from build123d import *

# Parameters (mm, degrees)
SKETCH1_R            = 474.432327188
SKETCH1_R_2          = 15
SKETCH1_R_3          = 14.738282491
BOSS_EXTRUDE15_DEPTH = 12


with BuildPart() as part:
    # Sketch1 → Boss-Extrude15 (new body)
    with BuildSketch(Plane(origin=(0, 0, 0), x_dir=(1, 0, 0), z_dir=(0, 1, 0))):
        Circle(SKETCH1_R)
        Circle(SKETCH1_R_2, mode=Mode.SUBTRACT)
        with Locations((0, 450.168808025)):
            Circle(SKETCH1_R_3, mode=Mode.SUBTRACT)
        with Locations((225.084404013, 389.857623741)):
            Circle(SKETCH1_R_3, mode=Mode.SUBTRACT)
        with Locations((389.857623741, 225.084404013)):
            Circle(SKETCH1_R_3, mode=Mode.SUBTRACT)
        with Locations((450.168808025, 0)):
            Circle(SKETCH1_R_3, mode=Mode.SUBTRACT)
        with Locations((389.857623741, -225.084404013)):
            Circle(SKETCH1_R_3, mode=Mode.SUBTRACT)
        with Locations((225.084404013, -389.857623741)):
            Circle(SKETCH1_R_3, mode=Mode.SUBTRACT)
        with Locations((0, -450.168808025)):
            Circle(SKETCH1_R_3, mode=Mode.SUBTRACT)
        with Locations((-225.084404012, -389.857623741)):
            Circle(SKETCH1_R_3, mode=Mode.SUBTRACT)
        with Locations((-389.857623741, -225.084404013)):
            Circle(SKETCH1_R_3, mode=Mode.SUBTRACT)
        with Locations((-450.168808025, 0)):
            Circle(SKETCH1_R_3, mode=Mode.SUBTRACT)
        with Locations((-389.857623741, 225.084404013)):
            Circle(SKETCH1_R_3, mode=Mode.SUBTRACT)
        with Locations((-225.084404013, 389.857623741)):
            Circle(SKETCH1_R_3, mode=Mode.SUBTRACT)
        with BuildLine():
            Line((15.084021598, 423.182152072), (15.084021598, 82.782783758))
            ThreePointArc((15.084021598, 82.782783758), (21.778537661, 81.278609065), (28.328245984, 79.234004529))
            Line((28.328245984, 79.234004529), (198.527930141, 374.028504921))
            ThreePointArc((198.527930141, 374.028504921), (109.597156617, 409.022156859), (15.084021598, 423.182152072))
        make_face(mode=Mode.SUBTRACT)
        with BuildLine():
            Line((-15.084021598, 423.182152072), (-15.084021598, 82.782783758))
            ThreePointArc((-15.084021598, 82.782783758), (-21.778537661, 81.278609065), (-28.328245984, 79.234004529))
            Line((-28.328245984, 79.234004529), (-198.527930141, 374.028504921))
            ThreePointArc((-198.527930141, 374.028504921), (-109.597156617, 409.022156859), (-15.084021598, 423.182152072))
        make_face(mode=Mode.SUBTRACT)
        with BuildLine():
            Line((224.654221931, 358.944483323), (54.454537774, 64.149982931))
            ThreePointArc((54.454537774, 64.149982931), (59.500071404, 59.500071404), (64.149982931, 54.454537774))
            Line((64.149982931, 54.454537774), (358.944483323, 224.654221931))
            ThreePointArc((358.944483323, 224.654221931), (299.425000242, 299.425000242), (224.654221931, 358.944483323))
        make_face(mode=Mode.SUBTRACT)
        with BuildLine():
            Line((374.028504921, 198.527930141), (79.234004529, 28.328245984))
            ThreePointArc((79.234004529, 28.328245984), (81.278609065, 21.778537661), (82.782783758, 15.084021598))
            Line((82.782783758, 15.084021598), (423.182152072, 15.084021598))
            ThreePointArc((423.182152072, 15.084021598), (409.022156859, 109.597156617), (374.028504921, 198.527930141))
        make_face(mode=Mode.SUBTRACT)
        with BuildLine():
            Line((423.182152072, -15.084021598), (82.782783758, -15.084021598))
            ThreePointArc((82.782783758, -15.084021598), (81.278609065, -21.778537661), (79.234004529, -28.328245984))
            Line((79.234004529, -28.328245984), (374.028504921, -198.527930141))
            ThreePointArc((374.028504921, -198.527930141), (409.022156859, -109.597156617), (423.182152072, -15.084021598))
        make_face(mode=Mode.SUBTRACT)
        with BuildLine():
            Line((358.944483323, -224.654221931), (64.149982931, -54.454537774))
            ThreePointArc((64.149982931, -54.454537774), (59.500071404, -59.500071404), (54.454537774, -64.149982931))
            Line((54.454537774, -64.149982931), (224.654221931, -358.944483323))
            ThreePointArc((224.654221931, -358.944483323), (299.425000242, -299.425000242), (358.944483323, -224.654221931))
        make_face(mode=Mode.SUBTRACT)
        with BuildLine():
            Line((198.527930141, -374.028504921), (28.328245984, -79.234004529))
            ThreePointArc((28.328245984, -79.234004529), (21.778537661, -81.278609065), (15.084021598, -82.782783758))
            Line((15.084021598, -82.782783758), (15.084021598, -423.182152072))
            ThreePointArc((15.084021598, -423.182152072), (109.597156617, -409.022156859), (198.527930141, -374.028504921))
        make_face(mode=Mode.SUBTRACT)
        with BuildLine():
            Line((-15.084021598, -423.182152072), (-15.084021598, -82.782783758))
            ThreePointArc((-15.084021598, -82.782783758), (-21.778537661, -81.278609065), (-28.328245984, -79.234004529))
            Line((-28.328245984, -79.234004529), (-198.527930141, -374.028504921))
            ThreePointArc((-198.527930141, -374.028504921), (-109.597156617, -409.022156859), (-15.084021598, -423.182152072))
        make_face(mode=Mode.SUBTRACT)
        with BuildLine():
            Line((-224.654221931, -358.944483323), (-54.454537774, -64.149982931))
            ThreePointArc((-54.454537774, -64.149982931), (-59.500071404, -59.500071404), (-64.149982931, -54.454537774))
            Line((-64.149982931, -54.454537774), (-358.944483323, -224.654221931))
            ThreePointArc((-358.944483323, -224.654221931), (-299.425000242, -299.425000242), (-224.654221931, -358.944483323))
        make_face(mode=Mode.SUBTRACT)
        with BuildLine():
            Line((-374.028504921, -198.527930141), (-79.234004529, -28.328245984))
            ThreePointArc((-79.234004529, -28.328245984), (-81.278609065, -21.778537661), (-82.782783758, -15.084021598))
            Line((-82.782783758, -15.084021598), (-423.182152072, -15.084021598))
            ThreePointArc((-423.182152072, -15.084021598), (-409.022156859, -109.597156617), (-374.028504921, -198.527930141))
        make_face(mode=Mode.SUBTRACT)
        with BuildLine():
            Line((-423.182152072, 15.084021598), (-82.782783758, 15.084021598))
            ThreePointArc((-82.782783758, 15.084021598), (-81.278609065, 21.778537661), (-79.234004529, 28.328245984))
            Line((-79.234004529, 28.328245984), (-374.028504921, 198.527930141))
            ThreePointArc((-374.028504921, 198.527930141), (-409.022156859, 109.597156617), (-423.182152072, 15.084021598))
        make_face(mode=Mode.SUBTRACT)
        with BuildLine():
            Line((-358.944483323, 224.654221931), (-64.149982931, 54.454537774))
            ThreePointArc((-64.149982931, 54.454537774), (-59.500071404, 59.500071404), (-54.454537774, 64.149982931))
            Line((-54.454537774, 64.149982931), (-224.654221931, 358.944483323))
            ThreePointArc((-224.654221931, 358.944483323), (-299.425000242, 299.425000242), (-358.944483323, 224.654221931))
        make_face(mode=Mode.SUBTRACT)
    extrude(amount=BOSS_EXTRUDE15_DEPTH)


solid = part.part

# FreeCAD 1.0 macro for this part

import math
import FreeCAD as App
import Part
import Sketcher

V = App.Vector
Q = App.Units.Quantity

doc = App.newDocument("Part")
body = doc.addObject("PartDesign::Body", "Body")

# Sketch on XZ plane
sketch1 = body.newObject("Sketcher::SketchObject", "Sketch")
sketch1.AttachmentSupport = (doc.getObject("XZ_Plane"), [""])
sketch1.MapMode = "FlatFace"
sketch1.addGeometry(Part.Circle(V(0, 0, 0), V(0, 0, 1), 474.432327), False)
sketch1.addGeometry(Part.Circle(V(-225.084404, 389.857624, 0), V(0, 0, 1), 14.738282), False)
sketch1.addGeometry(Part.LineSegment(V(-15.084022, 82.782784, 0), V(-15.084022, 423.182152, 0)), False)
sketch1.addGeometry(Part.ArcOfCircle(Part.Circle(V(0, 0, 0), V(0, 0, 1), 423.450896), math.radians(92.041402), math.radians(117.958598)), False)
sketch1.addGeometry(Part.LineSegment(V(-198.52793, 374.028505, 0), V(-28.328246, 79.234005, 0)), False)
sketch1.addGeometry(Part.ArcOfCircle(Part.Circle(V(0, 0, 0), V(0, 0, 1), 84.145808), math.radians(100.32669), math.radians(109.67331)), False)
sketch1.addGeometry(Part.Circle(V(-389.857624, 225.084404, 0), V(0, 0, 1), 14.738282), False)
sketch1.addGeometry(Part.Circle(V(-450.168808, 0, 0), V(0, 0, 1), 14.738282), False)
sketch1.addGeometry(Part.LineSegment(V(-79.234005, 28.328246, 0), V(-374.028505, 198.52793, 0)), False)
sketch1.addGeometry(Part.ArcOfCircle(Part.Circle(V(0, 0, 0), V(0, 0, 1), 423.450896), math.radians(152.041402), math.radians(177.958598)), False)
sketch1.addGeometry(Part.LineSegment(V(-423.182152, 15.084022, 0), V(-82.782784, 15.084022, 0)), False)
sketch1.addGeometry(Part.ArcOfCircle(Part.Circle(V(0, 0, 0), V(0, 0, 1), 84.145808), math.radians(160.32669), math.radians(169.67331)), False)
sketch1.addGeometry(Part.LineSegment(V(-54.454538, 64.149983, 0), V(-224.654222, 358.944483, 0)), False)
sketch1.addGeometry(Part.ArcOfCircle(Part.Circle(V(0, 0, 0), V(0, 0, 1), 423.450896), math.radians(122.041402), math.radians(147.958598)), False)
sketch1.addGeometry(Part.LineSegment(V(-358.944483, 224.654222, 0), V(-64.149983, 54.454538, 0)), False)
sketch1.addGeometry(Part.ArcOfCircle(Part.Circle(V(0, 0, 0), V(0, 0, 1), 84.145808), math.radians(130.32669), math.radians(139.67331)), False)
sketch1.addGeometry(Part.Circle(V(0, 450.168808, 0), V(0, 0, 1), 14.738282), False)
sketch1.addGeometry(Part.Circle(V(225.084404, 389.857624, 0), V(0, 0, 1), 14.738282), False)
sketch1.addGeometry(Part.LineSegment(V(28.328246, 79.234005, 0), V(198.52793, 374.028505, 0)), False)
sketch1.addGeometry(Part.ArcOfCircle(Part.Circle(V(0, 0, 0), V(0, 0, 1), 423.450896), math.radians(62.041402), math.radians(87.958598)), False)
sketch1.addGeometry(Part.LineSegment(V(15.084022, 423.182152, 0), V(15.084022, 82.782784, 0)), False)
sketch1.addGeometry(Part.ArcOfCircle(Part.Circle(V(0, 0, 0), V(0, 0, 1), 84.145808), math.radians(70.32669), math.radians(79.67331)), False)
sketch1.addGeometry(Part.LineSegment(V(64.149983, 54.454538, 0), V(358.944483, 224.654222, 0)), False)
sketch1.addGeometry(Part.ArcOfCircle(Part.Circle(V(0, 0, 0), V(0, 0, 1), 423.450896), math.radians(32.041402), math.radians(57.958598)), False)
sketch1.addGeometry(Part.LineSegment(V(224.654222, 358.944483, 0), V(54.454538, 64.149983, 0)), False)
sketch1.addGeometry(Part.ArcOfCircle(Part.Circle(V(0, 0, 0), V(0, 0, 1), 84.145808), math.radians(40.32669), math.radians(49.67331)), False)
sketch1.addGeometry(Part.Circle(V(0, 0, 0), V(0, 0, 1), 15), False)
sketch1.addGeometry(Part.Circle(V(389.857624, 225.084404, 0), V(0, 0, 1), 14.738282), False)
sketch1.addGeometry(Part.LineSegment(V(82.782784, 15.084022, 0), V(423.182152, 15.084022, 0)), False)
sketch1.addGeometry(Part.ArcOfCircle(Part.Circle(V(0, 0, 0), V(0, 0, 1), 423.450896), math.radians(2.041402), math.radians(27.958598)), False)
sketch1.addGeometry(Part.LineSegment(V(374.028505, 198.52793, 0), V(79.234005, 28.328246, 0)), False)
sketch1.addGeometry(Part.ArcOfCircle(Part.Circle(V(0, 0, 0), V(0, 0, 1), 84.145808), math.radians(10.32669), math.radians(19.67331)), False)
sketch1.addGeometry(Part.Circle(V(450.168808, 0, 0), V(0, 0, 1), 14.738282), False)
sketch1.addGeometry(Part.LineSegment(V(-82.782784, -15.084022, 0), V(-423.182152, -15.084022, 0)), False)
sketch1.addGeometry(Part.ArcOfCircle(Part.Circle(V(0, 0, 0), V(0, 0, 1), 423.450896), math.radians(-177.958598), math.radians(-152.041402)), False)
sketch1.addGeometry(Part.LineSegment(V(-374.028505, -198.52793, 0), V(-79.234005, -28.328246, 0)), False)
sketch1.addGeometry(Part.ArcOfCircle(Part.Circle(V(0, 0, 0), V(0, 0, 1), 84.145808), math.radians(-169.67331), math.radians(-160.32669)), False)
sketch1.addGeometry(Part.Circle(V(-389.857624, -225.084404, 0), V(0, 0, 1), 14.738282), False)
sketch1.addGeometry(Part.LineSegment(V(-64.149983, -54.454538, 0), V(-358.944483, -224.654222, 0)), False)
sketch1.addGeometry(Part.ArcOfCircle(Part.Circle(V(0, 0, 0), V(0, 0, 1), 423.450896), math.radians(-147.958598), math.radians(-122.041402)), False)
sketch1.addGeometry(Part.LineSegment(V(-224.654222, -358.944483, 0), V(-54.454538, -64.149983, 0)), False)
sketch1.addGeometry(Part.ArcOfCircle(Part.Circle(V(0, 0, 0), V(0, 0, 1), 84.145808), math.radians(-139.67331), math.radians(-130.32669)), False)
sketch1.addGeometry(Part.ArcOfCircle(Part.Circle(V(0, 0, 0), V(0, 0, 1), 423.450896), math.radians(-117.958598), math.radians(-92.041402)), False)
sketch1.addGeometry(Part.LineSegment(V(-15.084022, -423.182152, 0), V(-15.084022, -82.782784, 0)), False)
sketch1.addGeometry(Part.ArcOfCircle(Part.Circle(V(0, 0, 0), V(0, 0, 1), 84.145808), math.radians(-109.67331), math.radians(-100.32669)), False)
sketch1.addGeometry(Part.LineSegment(V(-28.328246, -79.234005, 0), V(-198.52793, -374.028505, 0)), False)
sketch1.addGeometry(Part.Circle(V(-225.084404, -389.857624, 0), V(0, 0, 1), 14.738282), False)
sketch1.addGeometry(Part.LineSegment(V(54.454538, -64.149983, 0), V(224.654222, -358.944483, 0)), False)
sketch1.addGeometry(Part.ArcOfCircle(Part.Circle(V(0, 0, 0), V(0, 0, 1), 423.450896), math.radians(-57.958598), math.radians(-32.041402)), False)
sketch1.addGeometry(Part.LineSegment(V(358.944483, -224.654222, 0), V(64.149983, -54.454538, 0)), False)
sketch1.addGeometry(Part.ArcOfCircle(Part.Circle(V(0, 0, 0), V(0, 0, 1), 84.145808), math.radians(-49.67331), math.radians(-40.32669)), False)
sketch1.addGeometry(Part.LineSegment(V(79.234005, -28.328246, 0), V(374.028505, -198.52793, 0)), False)
sketch1.addGeometry(Part.ArcOfCircle(Part.Circle(V(0, 0, 0), V(0, 0, 1), 423.450896), math.radians(-27.958598), math.radians(-2.041402)), False)
sketch1.addGeometry(Part.LineSegment(V(423.182152, -15.084022, 0), V(82.782784, -15.084022, 0)), False)
sketch1.addGeometry(Part.ArcOfCircle(Part.Circle(V(0, 0, 0), V(0, 0, 1), 84.145808), math.radians(-19.67331), math.radians(-10.32669)), False)
sketch1.addGeometry(Part.Circle(V(389.857624, -225.084404, 0), V(0, 0, 1), 14.738282), False)
sketch1.addGeometry(Part.LineSegment(V(15.084022, -82.782784, 0), V(15.084022, -423.182152, 0)), False)
sketch1.addGeometry(Part.ArcOfCircle(Part.Circle(V(0, 0, 0), V(0, 0, 1), 423.450896), math.radians(-87.958598), math.radians(-62.041402)), False)
sketch1.addGeometry(Part.LineSegment(V(198.52793, -374.028505, 0), V(28.328246, -79.234005, 0)), False)
sketch1.addGeometry(Part.ArcOfCircle(Part.Circle(V(0, 0, 0), V(0, 0, 1), 84.145808), math.radians(-79.67331), math.radians(-70.32669)), False)
sketch1.addGeometry(Part.Circle(V(0, -450.168808, 0), V(0, 0, 1), 14.738282), False)
sketch1.addGeometry(Part.Circle(V(225.084404, -389.857624, 0), V(0, 0, 1), 14.738282), False)
sketch1.addConstraint(Sketcher.Constraint("Coincident", 2, 2, 3, 1))
sketch1.addConstraint(Sketcher.Constraint("Coincident", 3, 2, 4, 1))
sketch1.addConstraint(Sketcher.Constraint("Coincident", 4, 2, 5, 2))
sketch1.addConstraint(Sketcher.Constraint("Coincident", 5, 1, 2, 1))
sketch1.addConstraint(Sketcher.Constraint("Coincident", 8, 2, 9, 1))
sketch1.addConstraint(Sketcher.Constraint("Coincident", 9, 2, 10, 1))
sketch1.addConstraint(Sketcher.Constraint("Coincident", 10, 2, 11, 2))
sketch1.addConstraint(Sketcher.Constraint("Coincident", 11, 1, 8, 1))
sketch1.addConstraint(Sketcher.Constraint("Coincident", 12, 2, 13, 1))
sketch1.addConstraint(Sketcher.Constraint("Coincident", 13, 2, 14, 1))
sketch1.addConstraint(Sketcher.Constraint("Coincident", 14, 2, 15, 2))
sketch1.addConstraint(Sketcher.Constraint("Coincident", 15, 1, 12, 1))
sketch1.addConstraint(Sketcher.Constraint("Coincident", 18, 2, 19, 1))
sketch1.addConstraint(Sketcher.Constraint("Coincident", 19, 2, 20, 1))
sketch1.addConstraint(Sketcher.Constraint("Coincident", 20, 2, 21, 2))
sketch1.addConstraint(Sketcher.Constraint("Coincident", 21, 1, 18, 1))
sketch1.addConstraint(Sketcher.Constraint("Coincident", 22, 2, 23, 1))
sketch1.addConstraint(Sketcher.Constraint("Coincident", 23, 2, 24, 1))
sketch1.addConstraint(Sketcher.Constraint("Coincident", 24, 2, 25, 2))
sketch1.addConstraint(Sketcher.Constraint("Coincident", 25, 1, 22, 1))
sketch1.addConstraint(Sketcher.Constraint("Coincident", 28, 2, 29, 1))
sketch1.addConstraint(Sketcher.Constraint("Coincident", 29, 2, 30, 1))
sketch1.addConstraint(Sketcher.Constraint("Coincident", 30, 2, 31, 2))
sketch1.addConstraint(Sketcher.Constraint("Coincident", 31, 1, 28, 1))
sketch1.addConstraint(Sketcher.Constraint("Coincident", 33, 2, 34, 1))
sketch1.addConstraint(Sketcher.Constraint("Coincident", 34, 2, 35, 1))
sketch1.addConstraint(Sketcher.Constraint("Coincident", 35, 2, 36, 2))
sketch1.addConstraint(Sketcher.Constraint("Coincident", 36, 1, 33, 1))
sketch1.addConstraint(Sketcher.Constraint("Coincident", 38, 2, 39, 1))
sketch1.addConstraint(Sketcher.Constraint("Coincident", 39, 2, 40, 1))
sketch1.addConstraint(Sketcher.Constraint("Coincident", 40, 2, 41, 2))
sketch1.addConstraint(Sketcher.Constraint("Coincident", 41, 1, 38, 1))
sketch1.addConstraint(Sketcher.Constraint("Coincident", 42, 2, 43, 1))
sketch1.addConstraint(Sketcher.Constraint("Coincident", 43, 2, 44, 2))
sketch1.addConstraint(Sketcher.Constraint("Coincident", 44, 1, 45, 1))
sketch1.addConstraint(Sketcher.Constraint("Coincident", 45, 2, 42, 1))
sketch1.addConstraint(Sketcher.Constraint("Coincident", 47, 2, 48, 1))
sketch1.addConstraint(Sketcher.Constraint("Coincident", 48, 2, 49, 1))
sketch1.addConstraint(Sketcher.Constraint("Coincident", 49, 2, 50, 2))
sketch1.addConstraint(Sketcher.Constraint("Coincident", 50, 1, 47, 1))
sketch1.addConstraint(Sketcher.Constraint("Coincident", 51, 2, 52, 1))
sketch1.addConstraint(Sketcher.Constraint("Coincident", 52, 2, 53, 1))
sketch1.addConstraint(Sketcher.Constraint("Coincident", 53, 2, 54, 2))
sketch1.addConstraint(Sketcher.Constraint("Coincident", 54, 1, 51, 1))
sketch1.addConstraint(Sketcher.Constraint("Coincident", 56, 2, 57, 1))
sketch1.addConstraint(Sketcher.Constraint("Coincident", 57, 2, 58, 1))
sketch1.addConstraint(Sketcher.Constraint("Coincident", 58, 2, 59, 2))
sketch1.addConstraint(Sketcher.Constraint("Coincident", 59, 1, 56, 1))
sketch1.addConstraint(Sketcher.Constraint("Vertical", 2))
sketch1.addConstraint(Sketcher.Constraint("Horizontal", 10))
sketch1.addConstraint(Sketcher.Constraint("Vertical", 20))
sketch1.addConstraint(Sketcher.Constraint("Horizontal", 28))
sketch1.addConstraint(Sketcher.Constraint("Horizontal", 33))
sketch1.addConstraint(Sketcher.Constraint("Vertical", 43))
sketch1.addConstraint(Sketcher.Constraint("Horizontal", 53))
sketch1.addConstraint(Sketcher.Constraint("Vertical", 56))
sketch1.addConstraint(Sketcher.Constraint("Coincident", 0, 3, -1, 1))
sketch1.addConstraint(Sketcher.Constraint("Coincident", 3, 3, -1, 1))
sketch1.addConstraint(Sketcher.Constraint("Coincident", 5, 3, -1, 1))
sketch1.addConstraint(Sketcher.Constraint("Coincident", 9, 3, -1, 1))
sketch1.addConstraint(Sketcher.Constraint("Coincident", 11, 3, -1, 1))
sketch1.addConstraint(Sketcher.Constraint("Coincident", 13, 3, -1, 1))
sketch1.addConstraint(Sketcher.Constraint("Coincident", 15, 3, -1, 1))
sketch1.addConstraint(Sketcher.Constraint("Coincident", 19, 3, -1, 1))
sketch1.addConstraint(Sketcher.Constraint("Coincident", 21, 3, -1, 1))
sketch1.addConstraint(Sketcher.Constraint("Coincident", 23, 3, -1, 1))
sketch1.addConstraint(Sketcher.Constraint("Coincident", 25, 3, -1, 1))
sketch1.addConstraint(Sketcher.Constraint("Coincident", 26, 3, -1, 1))
sketch1.addConstraint(Sketcher.Constraint("Coincident", 29, 3, -1, 1))
sketch1.addConstraint(Sketcher.Constraint("Coincident", 31, 3, -1, 1))
sketch1.addConstraint(Sketcher.Constraint("Coincident", 34, 3, -1, 1))
sketch1.addConstraint(Sketcher.Constraint("Coincident", 36, 3, -1, 1))
sketch1.addConstraint(Sketcher.Constraint("Coincident", 39, 3, -1, 1))
sketch1.addConstraint(Sketcher.Constraint("Coincident", 41, 3, -1, 1))
sketch1.addConstraint(Sketcher.Constraint("Coincident", 42, 3, -1, 1))
sketch1.addConstraint(Sketcher.Constraint("Coincident", 44, 3, -1, 1))
sketch1.addConstraint(Sketcher.Constraint("Coincident", 48, 3, -1, 1))
sketch1.addConstraint(Sketcher.Constraint("Coincident", 50, 3, -1, 1))
sketch1.addConstraint(Sketcher.Constraint("Coincident", 52, 3, -1, 1))
sketch1.addConstraint(Sketcher.Constraint("Coincident", 54, 3, -1, 1))
sketch1.addConstraint(Sketcher.Constraint("Coincident", 57, 3, -1, 1))
sketch1.addConstraint(Sketcher.Constraint("Coincident", 59, 3, -1, 1))
sketch1.addConstraint(Sketcher.Constraint("Equal", 1, 6))
sketch1.addConstraint(Sketcher.Constraint("Equal", 6, 7))
sketch1.addConstraint(Sketcher.Constraint("Equal", 3, 9))
sketch1.addConstraint(Sketcher.Constraint("Equal", 5, 11))
sketch1.addConstraint(Sketcher.Constraint("Equal", 9, 13))
sketch1.addConstraint(Sketcher.Constraint("Equal", 11, 15))
sketch1.addConstraint(Sketcher.Constraint("Equal", 7, 16))
sketch1.addConstraint(Sketcher.Constraint("Equal", 16, 17))
sketch1.addConstraint(Sketcher.Constraint("Equal", 13, 19))
sketch1.addConstraint(Sketcher.Constraint("Equal", 15, 21))
sketch1.addConstraint(Sketcher.Constraint("Equal", 19, 23))
sketch1.addConstraint(Sketcher.Constraint("Equal", 21, 25))
sketch1.addConstraint(Sketcher.Constraint("Equal", 17, 27))
sketch1.addConstraint(Sketcher.Constraint("Equal", 23, 29))
sketch1.addConstraint(Sketcher.Constraint("Equal", 25, 31))
sketch1.addConstraint(Sketcher.Constraint("Equal", 27, 32))
sketch1.addConstraint(Sketcher.Constraint("Equal", 29, 34))
sketch1.addConstraint(Sketcher.Constraint("Equal", 31, 36))
sketch1.addConstraint(Sketcher.Constraint("Equal", 32, 37))
sketch1.addConstraint(Sketcher.Constraint("Equal", 34, 39))
sketch1.addConstraint(Sketcher.Constraint("Equal", 36, 41))
sketch1.addConstraint(Sketcher.Constraint("Equal", 39, 42))
sketch1.addConstraint(Sketcher.Constraint("Equal", 41, 44))
sketch1.addConstraint(Sketcher.Constraint("Equal", 37, 46))
sketch1.addConstraint(Sketcher.Constraint("Equal", 42, 48))
sketch1.addConstraint(Sketcher.Constraint("Equal", 44, 50))
sketch1.addConstraint(Sketcher.Constraint("Equal", 48, 52))
sketch1.addConstraint(Sketcher.Constraint("Equal", 50, 54))
sketch1.addConstraint(Sketcher.Constraint("Equal", 46, 55))
sketch1.addConstraint(Sketcher.Constraint("Equal", 52, 57))
sketch1.addConstraint(Sketcher.Constraint("Equal", 54, 59))
sketch1.addConstraint(Sketcher.Constraint("Equal", 55, 60))
sketch1.addConstraint(Sketcher.Constraint("Equal", 60, 61))
sketch1.addConstraint(Sketcher.Constraint("Symmetric", 7, 3, 32, 3, -1, 1))
sketch1.addConstraint(Sketcher.Constraint("Symmetric", 27, 3, 37, 3, -1, 1))
sketch1.addConstraint(Sketcher.Constraint("Symmetric", 17, 3, 46, 3, -1, 1))
sketch1.addConstraint(Sketcher.Constraint("Symmetric", 6, 3, 55, 3, -1, 1))
sketch1.addConstraint(Sketcher.Constraint("Symmetric", 16, 3, 60, 3, -1, 1))
sketch1.addConstraint(Sketcher.Constraint("Symmetric", 1, 3, 61, 3, -1, 1))
sketch1.addConstraint(Sketcher.Constraint("Symmetric", 1, 3, 17, 3, -2))
sketch1.addConstraint(Sketcher.Constraint("Symmetric", 6, 3, 27, 3, -2))
sketch1.addConstraint(Sketcher.Constraint("PointOnObject", 7, 3, -1))
sketch1.addConstraint(Sketcher.Constraint("PointOnObject", 16, 3, -2))
sketch1.addConstraint(Sketcher.Constraint("Parallel", 4, 12))
sketch1.addConstraint(Sketcher.Constraint("Parallel", 8, 14))
sketch1.addConstraint(Sketcher.Constraint("Perpendicular", 14, 18))
sketch1.addConstraint(Sketcher.Constraint("Perpendicular", 12, 22))
sketch1.addConstraint(Sketcher.Constraint("Parallel", 18, 24))
sketch1.addConstraint(Sketcher.Constraint("Parallel", 22, 30))
sketch1.addConstraint(Sketcher.Constraint("Parallel", 30, 35))
sketch1.addConstraint(Sketcher.Constraint("Parallel", 35, 38))
sketch1.addConstraint(Sketcher.Constraint("Parallel", 24, 40))
sketch1.addConstraint(Sketcher.Constraint("Parallel", 40, 45))
sketch1.addConstraint(Sketcher.Constraint("Perpendicular", 38, 47))
sketch1.addConstraint(Sketcher.Constraint("Perpendicular", 45, 49))
sketch1.addConstraint(Sketcher.Constraint("Parallel", 49, 51))
sketch1.addConstraint(Sketcher.Constraint("Parallel", 47, 58))
sketch1.addConstraint(Sketcher.Constraint("Horizontal", 3, 2, 18, 2))
sketch1.addConstraint(Sketcher.Constraint("Horizontal", 2, 2, 19, 2))
sketch1.addConstraint(Sketcher.Constraint("Horizontal", 4, 2, 21, 1))
sketch1.addConstraint(Sketcher.Constraint("Horizontal", 13, 2, 22, 2))
sketch1.addConstraint(Sketcher.Constraint("Horizontal", 12, 2, 23, 2))
sketch1.addConstraint(Sketcher.Constraint("Horizontal", 10, 2, 28, 2))
sketch1.addConstraint(Sketcher.Constraint("Horizontal", 8, 2, 29, 2))
sketch1.addConstraint(Sketcher.Constraint("Horizontal", 39, 2, 47, 2))
sketch1.addConstraint(Sketcher.Constraint("Horizontal", 38, 2, 48, 2))
sketch1.addConstraint(Sketcher.Constraint("Horizontal", 34, 2, 51, 2))
sketch1.addConstraint(Sketcher.Constraint("Horizontal", 36, 1, 52, 2))
sketch1.addConstraint(Sketcher.Constraint("Horizontal", 42, 2, 56, 2))
sketch1.addConstraint(Sketcher.Constraint("Horizontal", 45, 2, 57, 2))
sketch1.addConstraint(Sketcher.Constraint("Vertical", 11, 1, 35, 2))
sketch1.addConstraint(Sketcher.Constraint("Vertical", 10, 2, 36, 1))
sketch1.addConstraint(Sketcher.Constraint("Vertical", 15, 1, 40, 2))
sketch1.addConstraint(Sketcher.Constraint("Vertical", 14, 2, 41, 1))
sketch1.addConstraint(Sketcher.Constraint("Vertical", 4, 2, 44, 1))
sketch1.addConstraint(Sketcher.Constraint("Vertical", 20, 2, 56, 2))
sketch1.addConstraint(Sketcher.Constraint("Equal", 53, 2))
sketch1.addConstraint(Sketcher.Constraint("Equal", 4, 8))
sketch1.addConstraint(Sketcher.Constraint("Equal", 8, 12))
sketch1.addConstraint(Sketcher.Constraint("Equal", 12, 14))
sketch1.addConstraint(Sketcher.Constraint("Diameter", 26, Q("30 mm")))
sketch1.addConstraint(Sketcher.Constraint("Angle", 4, Q("-60 deg")))
sketch1.addConstraint(Sketcher.Constraint("Radius", 5, Q("84.145808 mm")))
sketch1.addConstraint(Sketcher.Constraint("Diameter", 0, Q("948.864654 mm")))
sketch1.addConstraint(Sketcher.Constraint("Diameter", 1, Q("29.476565 mm")))
sketch1.addConstraint(Sketcher.Constraint("Radius", 3, Q("423.450896 mm")))
sketch1.addConstraint(Sketcher.Constraint("DistanceX", 10, 1, 10, 2, Q("340.399368 mm")))
sketch1.addConstraint(Sketcher.Constraint("Distance", 4, Q("340.399368 mm")))
sketch1.addConstraint(Sketcher.Constraint("DistanceX", 7, 3, -1, 1, Q("450.168808 mm")))
sketch1.addConstraint(Sketcher.Constraint("DistanceY", -1, 1, 16, 3, Q("450.168808 mm")))
sketch1.addConstraint(Sketcher.Constraint("DistanceX", 1, 3, -1, 1, Q("225.084404 mm")))
sketch1.addConstraint(Sketcher.Constraint("DistanceY", -1, 1, 1, 3, Q("389.857624 mm")))
sketch1.addConstraint(Sketcher.Constraint("DistanceX", 6, 3, -1, 1, Q("389.857624 mm")))
sketch1.addConstraint(Sketcher.Constraint("DistanceY", -1, 1, 6, 3, Q("225.084404 mm")))
pad1 = body.newObject("PartDesign::Pad", "Pad")
pad1.Profile = sketch1
pad1.Length = 12
pad1.Reversed = True

doc.recompute()
